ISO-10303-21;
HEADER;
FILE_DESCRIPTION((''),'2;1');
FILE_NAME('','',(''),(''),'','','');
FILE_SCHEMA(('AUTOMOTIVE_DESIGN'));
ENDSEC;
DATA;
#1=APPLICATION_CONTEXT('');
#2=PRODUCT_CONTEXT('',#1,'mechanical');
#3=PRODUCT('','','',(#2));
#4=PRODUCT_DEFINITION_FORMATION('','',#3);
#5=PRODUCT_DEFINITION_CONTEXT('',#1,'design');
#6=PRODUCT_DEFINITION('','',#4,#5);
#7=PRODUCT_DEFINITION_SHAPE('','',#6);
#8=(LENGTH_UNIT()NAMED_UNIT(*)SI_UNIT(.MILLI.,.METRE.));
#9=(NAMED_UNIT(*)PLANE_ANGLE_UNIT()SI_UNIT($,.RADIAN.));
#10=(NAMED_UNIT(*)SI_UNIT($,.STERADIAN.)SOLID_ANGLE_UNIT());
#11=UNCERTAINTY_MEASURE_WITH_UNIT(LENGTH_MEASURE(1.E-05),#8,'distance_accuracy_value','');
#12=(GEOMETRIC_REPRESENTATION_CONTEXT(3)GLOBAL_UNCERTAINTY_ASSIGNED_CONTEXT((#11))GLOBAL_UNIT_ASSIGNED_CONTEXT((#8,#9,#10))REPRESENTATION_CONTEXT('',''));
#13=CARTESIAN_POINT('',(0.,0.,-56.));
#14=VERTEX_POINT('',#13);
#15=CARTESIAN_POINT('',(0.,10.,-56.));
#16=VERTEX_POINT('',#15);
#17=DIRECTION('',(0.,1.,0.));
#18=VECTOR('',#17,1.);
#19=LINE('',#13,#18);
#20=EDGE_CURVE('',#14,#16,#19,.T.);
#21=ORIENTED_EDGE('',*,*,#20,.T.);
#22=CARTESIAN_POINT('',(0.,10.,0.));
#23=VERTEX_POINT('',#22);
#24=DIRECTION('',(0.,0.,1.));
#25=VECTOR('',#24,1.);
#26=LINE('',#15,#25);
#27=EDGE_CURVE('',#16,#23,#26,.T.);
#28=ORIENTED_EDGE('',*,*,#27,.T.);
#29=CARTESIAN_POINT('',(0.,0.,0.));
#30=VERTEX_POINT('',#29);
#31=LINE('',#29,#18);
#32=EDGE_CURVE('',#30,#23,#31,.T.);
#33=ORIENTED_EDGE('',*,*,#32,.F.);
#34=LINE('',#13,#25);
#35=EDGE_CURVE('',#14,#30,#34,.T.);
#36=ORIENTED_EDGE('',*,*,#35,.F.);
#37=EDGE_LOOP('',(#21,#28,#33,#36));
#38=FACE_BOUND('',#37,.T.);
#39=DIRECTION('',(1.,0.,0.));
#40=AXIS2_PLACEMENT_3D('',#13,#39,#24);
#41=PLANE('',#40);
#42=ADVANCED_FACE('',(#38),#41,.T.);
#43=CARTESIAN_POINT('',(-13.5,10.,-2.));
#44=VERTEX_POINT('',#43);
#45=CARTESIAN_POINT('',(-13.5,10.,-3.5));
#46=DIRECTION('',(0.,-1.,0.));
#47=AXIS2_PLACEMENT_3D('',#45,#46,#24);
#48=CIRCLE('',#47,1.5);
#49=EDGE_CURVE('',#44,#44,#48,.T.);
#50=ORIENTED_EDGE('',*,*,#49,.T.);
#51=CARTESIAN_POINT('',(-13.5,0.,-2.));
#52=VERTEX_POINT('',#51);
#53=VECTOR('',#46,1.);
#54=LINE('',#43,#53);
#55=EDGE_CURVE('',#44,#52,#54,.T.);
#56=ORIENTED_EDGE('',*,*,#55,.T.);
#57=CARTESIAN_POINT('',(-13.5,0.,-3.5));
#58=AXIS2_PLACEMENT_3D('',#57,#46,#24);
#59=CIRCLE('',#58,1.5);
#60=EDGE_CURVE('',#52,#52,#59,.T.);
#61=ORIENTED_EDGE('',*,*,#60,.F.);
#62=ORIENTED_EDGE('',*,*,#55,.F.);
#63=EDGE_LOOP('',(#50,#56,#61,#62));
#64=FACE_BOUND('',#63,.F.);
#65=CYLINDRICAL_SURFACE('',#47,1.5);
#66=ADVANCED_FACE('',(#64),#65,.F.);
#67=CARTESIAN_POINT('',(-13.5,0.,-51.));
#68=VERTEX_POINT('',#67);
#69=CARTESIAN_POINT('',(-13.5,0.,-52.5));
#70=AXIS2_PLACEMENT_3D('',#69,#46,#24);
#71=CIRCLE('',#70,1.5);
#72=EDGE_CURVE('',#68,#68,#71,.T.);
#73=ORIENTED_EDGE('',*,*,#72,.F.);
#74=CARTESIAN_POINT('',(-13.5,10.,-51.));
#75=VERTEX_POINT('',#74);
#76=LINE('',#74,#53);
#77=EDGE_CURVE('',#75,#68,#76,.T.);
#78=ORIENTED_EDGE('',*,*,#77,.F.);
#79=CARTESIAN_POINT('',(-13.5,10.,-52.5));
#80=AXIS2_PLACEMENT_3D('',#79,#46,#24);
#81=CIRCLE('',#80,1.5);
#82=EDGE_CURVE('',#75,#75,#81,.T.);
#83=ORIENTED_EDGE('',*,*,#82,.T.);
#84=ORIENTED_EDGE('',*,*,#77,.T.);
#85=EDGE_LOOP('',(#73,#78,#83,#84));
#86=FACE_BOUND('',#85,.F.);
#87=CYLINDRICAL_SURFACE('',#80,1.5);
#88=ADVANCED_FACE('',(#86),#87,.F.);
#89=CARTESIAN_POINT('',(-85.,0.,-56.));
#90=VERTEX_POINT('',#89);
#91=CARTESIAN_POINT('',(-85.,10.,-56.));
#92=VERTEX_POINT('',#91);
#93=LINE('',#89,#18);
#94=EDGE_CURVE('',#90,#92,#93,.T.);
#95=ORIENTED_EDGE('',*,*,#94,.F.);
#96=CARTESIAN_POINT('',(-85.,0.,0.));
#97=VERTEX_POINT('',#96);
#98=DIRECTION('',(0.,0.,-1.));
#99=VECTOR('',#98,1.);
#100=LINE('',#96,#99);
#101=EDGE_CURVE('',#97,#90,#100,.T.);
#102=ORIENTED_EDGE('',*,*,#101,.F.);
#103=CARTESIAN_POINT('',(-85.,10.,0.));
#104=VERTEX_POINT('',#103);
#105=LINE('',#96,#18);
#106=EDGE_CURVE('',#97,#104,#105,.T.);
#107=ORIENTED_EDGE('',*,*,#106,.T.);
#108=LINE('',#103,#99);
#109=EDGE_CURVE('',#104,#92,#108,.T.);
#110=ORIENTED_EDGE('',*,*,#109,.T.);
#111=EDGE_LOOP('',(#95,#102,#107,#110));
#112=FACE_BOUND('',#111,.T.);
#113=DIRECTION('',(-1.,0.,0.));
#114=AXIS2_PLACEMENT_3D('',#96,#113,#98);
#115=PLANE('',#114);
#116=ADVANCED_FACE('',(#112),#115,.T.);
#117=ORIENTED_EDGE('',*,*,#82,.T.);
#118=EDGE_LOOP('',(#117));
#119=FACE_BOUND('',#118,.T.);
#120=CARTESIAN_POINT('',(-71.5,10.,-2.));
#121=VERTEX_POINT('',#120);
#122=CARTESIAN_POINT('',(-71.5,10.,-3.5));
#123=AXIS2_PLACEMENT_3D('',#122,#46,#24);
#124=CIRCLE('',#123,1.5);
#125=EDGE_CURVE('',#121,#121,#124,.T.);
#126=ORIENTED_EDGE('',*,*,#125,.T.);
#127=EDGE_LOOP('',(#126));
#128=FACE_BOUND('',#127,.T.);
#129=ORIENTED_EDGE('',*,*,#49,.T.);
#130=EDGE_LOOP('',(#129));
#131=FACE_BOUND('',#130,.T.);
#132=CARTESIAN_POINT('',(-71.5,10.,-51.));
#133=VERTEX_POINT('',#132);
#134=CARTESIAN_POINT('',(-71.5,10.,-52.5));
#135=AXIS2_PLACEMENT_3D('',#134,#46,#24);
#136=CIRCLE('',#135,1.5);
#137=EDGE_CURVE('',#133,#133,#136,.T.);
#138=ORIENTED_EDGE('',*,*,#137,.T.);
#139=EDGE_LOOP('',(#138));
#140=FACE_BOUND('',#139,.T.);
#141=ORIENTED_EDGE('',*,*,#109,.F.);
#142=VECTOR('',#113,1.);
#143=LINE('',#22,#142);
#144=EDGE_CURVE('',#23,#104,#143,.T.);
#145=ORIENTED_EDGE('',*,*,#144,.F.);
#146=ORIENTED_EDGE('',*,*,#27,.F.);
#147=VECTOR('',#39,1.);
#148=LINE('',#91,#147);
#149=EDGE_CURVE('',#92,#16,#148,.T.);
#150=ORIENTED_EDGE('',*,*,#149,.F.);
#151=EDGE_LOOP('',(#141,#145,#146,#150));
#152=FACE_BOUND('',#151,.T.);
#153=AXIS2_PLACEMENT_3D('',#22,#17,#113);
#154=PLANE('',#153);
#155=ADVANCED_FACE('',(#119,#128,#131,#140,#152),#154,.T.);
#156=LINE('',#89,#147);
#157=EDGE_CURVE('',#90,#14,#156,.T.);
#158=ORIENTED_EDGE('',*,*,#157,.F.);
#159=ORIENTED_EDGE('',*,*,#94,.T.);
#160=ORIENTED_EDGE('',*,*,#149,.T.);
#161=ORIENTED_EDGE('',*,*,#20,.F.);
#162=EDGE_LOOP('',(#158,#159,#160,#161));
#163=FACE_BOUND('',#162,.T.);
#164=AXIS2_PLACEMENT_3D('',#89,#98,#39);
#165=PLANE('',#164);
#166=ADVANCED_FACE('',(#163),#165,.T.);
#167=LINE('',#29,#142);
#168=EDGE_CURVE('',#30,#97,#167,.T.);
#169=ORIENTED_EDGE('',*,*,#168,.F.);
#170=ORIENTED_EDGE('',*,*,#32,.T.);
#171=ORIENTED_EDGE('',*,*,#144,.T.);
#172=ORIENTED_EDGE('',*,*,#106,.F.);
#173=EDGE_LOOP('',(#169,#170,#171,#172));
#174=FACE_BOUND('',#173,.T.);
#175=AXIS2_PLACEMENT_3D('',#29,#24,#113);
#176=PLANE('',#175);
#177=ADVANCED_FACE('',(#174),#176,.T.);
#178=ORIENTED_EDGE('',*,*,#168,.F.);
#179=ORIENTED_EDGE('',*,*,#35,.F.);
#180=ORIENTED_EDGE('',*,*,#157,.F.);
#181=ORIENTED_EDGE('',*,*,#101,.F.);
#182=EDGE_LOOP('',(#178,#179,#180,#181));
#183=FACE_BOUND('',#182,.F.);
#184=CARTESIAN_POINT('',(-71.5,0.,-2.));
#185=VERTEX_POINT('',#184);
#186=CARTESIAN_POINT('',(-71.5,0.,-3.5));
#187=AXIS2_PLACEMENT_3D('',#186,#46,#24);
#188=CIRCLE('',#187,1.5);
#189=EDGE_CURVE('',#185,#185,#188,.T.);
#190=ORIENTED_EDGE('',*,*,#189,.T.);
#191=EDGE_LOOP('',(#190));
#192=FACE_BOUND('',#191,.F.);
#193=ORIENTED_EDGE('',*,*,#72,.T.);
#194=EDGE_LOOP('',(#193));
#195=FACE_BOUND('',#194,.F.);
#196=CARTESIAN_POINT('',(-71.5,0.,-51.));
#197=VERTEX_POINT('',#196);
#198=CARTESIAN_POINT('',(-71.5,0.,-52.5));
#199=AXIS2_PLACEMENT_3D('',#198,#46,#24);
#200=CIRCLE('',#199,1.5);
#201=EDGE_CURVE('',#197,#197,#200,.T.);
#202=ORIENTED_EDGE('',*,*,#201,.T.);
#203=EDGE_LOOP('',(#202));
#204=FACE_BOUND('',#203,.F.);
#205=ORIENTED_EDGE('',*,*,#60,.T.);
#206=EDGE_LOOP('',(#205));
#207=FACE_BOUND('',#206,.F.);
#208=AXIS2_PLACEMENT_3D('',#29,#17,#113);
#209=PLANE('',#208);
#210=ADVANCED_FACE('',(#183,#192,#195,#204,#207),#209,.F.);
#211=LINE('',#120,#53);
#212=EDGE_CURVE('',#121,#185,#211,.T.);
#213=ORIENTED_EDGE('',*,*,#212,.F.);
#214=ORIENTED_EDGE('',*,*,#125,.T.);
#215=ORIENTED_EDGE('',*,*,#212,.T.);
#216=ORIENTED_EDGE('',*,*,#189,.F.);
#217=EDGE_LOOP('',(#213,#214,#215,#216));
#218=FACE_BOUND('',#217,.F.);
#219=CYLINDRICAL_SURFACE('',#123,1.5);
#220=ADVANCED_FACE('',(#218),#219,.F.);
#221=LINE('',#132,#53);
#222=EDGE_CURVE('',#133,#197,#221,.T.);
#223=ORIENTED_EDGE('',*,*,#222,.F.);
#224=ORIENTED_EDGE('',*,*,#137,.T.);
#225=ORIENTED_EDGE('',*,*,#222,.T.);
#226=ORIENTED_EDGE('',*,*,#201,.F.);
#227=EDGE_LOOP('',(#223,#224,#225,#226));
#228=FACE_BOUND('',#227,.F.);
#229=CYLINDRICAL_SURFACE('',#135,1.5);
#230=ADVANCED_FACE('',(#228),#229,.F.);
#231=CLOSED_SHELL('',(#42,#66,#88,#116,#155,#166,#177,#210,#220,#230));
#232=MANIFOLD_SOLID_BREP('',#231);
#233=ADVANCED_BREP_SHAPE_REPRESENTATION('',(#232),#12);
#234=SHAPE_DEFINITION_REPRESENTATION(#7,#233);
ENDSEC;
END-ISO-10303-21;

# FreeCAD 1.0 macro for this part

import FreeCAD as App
import Part
import Sketcher
from FreeCAD import Vector
Q = App.Units.Quantity


def add_polygon(sketch, points):
    """Adds a closed chain of lines whose ends are joined by coincident constraints."""
    first, n = sketch.GeometryCount, len(points)
    for a, b in zip(points, points[1:] + points[:1]):
        sketch.addGeometry(Part.LineSegment(App.Vector(*a, 0), App.Vector(*b, 0)), False)
    for i in range(n):
        sketch.addConstraint(Sketcher.Constraint("Coincident", first + i, 2, first + (i + 1) % n, 1))

doc = App.newDocument("Part")
body = doc.addObject("PartDesign::Body", "Body")

sketch1 = body.newObject("Sketcher::SketchObject", "Sketch")
sketch1.AttachmentSupport = (doc.getObject("XZ_Plane"), [""])
sketch1.MapMode = "FlatFace"
add_polygon(sketch1, [(-85, 0), (0, 0), (0, -56), (-85, -56)])
sketch1.addConstraint([
    Sketcher.Constraint("Horizontal", 0),
    Sketcher.Constraint("Vertical", 1),
    Sketcher.Constraint("Horizontal", 2),
    Sketcher.Constraint("Vertical", 3),
    Sketcher.Constraint("Coincident", 0, 2, -1, 1),
    Sketcher.Constraint("DistanceX", 0, 1, 0, 2, Q("85 mm")),
    Sketcher.Constraint("DistanceY", 1, 2, 1, 1, Q("56 mm")),
])
pad1 = body.newObject("PartDesign::Pad", "Pad")
pad1.Profile = sketch1
pad1.Length = 10
pad1.Reversed = True

sketch2 = body.newObject("Sketcher::SketchObject", "Sketch001")
sketch2.AttachmentSupport = (doc.getObject("XZ_Plane"), [""])
sketch2.MapMode = "FlatFace"
sketch2.AttachmentOffset = App.Placement(Vector(0, 0, -10), App.Rotation())
sketch2.addGeometry([
    Part.Circle(Vector(-13.5, -52.5, 0), Vector(0, 0, 1), 1.5),
    Part.Circle(Vector(-13.5, -3.5, 0), Vector(0, 0, 1), 1.5),
    Part.Circle(Vector(-71.5, -3.5, 0), Vector(0, 0, 1), 1.5),
    Part.Circle(Vector(-71.5, -52.5, 0), Vector(0, 0, 1), 1.5),
], False)
sketch2.addConstraint([
    Sketcher.Constraint("Equal", 0, 1),
    Sketcher.Constraint("Equal", 1, 2),
    Sketcher.Constraint("Equal", 2, 3),
    Sketcher.Constraint("Horizontal", 1, 3, 2, 3),
    Sketcher.Constraint("Horizontal", 0, 3, 3, 3),
    Sketcher.Constraint("Vertical", 0, 3, 1, 3),
    Sketcher.Constraint("Vertical", 2, 3, 3, 3),
    Sketcher.Constraint("Diameter", 0, Q("3 mm")),
    Sketcher.Constraint("DistanceY", 0, 3, 1, 3, Q("49 mm")),
    Sketcher.Constraint("DistanceX", 2, 3, 1, 3, Q("58 mm")),
    Sketcher.Constraint("DistanceX", 0, 3, -1, 1, Q("13.5 mm")),
    Sketcher.Constraint("DistanceY", 0, 3, -1, 1, Q("52.5 mm")),
])
doc.recompute()
hole = body.newObject("PartDesign::Hole", "Hole")
hole.Profile = sketch2
hole.ThreadType = "None"
hole.Diameter = 3
hole.DepthType = "Dimension"
hole.Depth = 10
hole.DrillPoint = "Flat"
hole.Reversed = True

doc.recompute()
